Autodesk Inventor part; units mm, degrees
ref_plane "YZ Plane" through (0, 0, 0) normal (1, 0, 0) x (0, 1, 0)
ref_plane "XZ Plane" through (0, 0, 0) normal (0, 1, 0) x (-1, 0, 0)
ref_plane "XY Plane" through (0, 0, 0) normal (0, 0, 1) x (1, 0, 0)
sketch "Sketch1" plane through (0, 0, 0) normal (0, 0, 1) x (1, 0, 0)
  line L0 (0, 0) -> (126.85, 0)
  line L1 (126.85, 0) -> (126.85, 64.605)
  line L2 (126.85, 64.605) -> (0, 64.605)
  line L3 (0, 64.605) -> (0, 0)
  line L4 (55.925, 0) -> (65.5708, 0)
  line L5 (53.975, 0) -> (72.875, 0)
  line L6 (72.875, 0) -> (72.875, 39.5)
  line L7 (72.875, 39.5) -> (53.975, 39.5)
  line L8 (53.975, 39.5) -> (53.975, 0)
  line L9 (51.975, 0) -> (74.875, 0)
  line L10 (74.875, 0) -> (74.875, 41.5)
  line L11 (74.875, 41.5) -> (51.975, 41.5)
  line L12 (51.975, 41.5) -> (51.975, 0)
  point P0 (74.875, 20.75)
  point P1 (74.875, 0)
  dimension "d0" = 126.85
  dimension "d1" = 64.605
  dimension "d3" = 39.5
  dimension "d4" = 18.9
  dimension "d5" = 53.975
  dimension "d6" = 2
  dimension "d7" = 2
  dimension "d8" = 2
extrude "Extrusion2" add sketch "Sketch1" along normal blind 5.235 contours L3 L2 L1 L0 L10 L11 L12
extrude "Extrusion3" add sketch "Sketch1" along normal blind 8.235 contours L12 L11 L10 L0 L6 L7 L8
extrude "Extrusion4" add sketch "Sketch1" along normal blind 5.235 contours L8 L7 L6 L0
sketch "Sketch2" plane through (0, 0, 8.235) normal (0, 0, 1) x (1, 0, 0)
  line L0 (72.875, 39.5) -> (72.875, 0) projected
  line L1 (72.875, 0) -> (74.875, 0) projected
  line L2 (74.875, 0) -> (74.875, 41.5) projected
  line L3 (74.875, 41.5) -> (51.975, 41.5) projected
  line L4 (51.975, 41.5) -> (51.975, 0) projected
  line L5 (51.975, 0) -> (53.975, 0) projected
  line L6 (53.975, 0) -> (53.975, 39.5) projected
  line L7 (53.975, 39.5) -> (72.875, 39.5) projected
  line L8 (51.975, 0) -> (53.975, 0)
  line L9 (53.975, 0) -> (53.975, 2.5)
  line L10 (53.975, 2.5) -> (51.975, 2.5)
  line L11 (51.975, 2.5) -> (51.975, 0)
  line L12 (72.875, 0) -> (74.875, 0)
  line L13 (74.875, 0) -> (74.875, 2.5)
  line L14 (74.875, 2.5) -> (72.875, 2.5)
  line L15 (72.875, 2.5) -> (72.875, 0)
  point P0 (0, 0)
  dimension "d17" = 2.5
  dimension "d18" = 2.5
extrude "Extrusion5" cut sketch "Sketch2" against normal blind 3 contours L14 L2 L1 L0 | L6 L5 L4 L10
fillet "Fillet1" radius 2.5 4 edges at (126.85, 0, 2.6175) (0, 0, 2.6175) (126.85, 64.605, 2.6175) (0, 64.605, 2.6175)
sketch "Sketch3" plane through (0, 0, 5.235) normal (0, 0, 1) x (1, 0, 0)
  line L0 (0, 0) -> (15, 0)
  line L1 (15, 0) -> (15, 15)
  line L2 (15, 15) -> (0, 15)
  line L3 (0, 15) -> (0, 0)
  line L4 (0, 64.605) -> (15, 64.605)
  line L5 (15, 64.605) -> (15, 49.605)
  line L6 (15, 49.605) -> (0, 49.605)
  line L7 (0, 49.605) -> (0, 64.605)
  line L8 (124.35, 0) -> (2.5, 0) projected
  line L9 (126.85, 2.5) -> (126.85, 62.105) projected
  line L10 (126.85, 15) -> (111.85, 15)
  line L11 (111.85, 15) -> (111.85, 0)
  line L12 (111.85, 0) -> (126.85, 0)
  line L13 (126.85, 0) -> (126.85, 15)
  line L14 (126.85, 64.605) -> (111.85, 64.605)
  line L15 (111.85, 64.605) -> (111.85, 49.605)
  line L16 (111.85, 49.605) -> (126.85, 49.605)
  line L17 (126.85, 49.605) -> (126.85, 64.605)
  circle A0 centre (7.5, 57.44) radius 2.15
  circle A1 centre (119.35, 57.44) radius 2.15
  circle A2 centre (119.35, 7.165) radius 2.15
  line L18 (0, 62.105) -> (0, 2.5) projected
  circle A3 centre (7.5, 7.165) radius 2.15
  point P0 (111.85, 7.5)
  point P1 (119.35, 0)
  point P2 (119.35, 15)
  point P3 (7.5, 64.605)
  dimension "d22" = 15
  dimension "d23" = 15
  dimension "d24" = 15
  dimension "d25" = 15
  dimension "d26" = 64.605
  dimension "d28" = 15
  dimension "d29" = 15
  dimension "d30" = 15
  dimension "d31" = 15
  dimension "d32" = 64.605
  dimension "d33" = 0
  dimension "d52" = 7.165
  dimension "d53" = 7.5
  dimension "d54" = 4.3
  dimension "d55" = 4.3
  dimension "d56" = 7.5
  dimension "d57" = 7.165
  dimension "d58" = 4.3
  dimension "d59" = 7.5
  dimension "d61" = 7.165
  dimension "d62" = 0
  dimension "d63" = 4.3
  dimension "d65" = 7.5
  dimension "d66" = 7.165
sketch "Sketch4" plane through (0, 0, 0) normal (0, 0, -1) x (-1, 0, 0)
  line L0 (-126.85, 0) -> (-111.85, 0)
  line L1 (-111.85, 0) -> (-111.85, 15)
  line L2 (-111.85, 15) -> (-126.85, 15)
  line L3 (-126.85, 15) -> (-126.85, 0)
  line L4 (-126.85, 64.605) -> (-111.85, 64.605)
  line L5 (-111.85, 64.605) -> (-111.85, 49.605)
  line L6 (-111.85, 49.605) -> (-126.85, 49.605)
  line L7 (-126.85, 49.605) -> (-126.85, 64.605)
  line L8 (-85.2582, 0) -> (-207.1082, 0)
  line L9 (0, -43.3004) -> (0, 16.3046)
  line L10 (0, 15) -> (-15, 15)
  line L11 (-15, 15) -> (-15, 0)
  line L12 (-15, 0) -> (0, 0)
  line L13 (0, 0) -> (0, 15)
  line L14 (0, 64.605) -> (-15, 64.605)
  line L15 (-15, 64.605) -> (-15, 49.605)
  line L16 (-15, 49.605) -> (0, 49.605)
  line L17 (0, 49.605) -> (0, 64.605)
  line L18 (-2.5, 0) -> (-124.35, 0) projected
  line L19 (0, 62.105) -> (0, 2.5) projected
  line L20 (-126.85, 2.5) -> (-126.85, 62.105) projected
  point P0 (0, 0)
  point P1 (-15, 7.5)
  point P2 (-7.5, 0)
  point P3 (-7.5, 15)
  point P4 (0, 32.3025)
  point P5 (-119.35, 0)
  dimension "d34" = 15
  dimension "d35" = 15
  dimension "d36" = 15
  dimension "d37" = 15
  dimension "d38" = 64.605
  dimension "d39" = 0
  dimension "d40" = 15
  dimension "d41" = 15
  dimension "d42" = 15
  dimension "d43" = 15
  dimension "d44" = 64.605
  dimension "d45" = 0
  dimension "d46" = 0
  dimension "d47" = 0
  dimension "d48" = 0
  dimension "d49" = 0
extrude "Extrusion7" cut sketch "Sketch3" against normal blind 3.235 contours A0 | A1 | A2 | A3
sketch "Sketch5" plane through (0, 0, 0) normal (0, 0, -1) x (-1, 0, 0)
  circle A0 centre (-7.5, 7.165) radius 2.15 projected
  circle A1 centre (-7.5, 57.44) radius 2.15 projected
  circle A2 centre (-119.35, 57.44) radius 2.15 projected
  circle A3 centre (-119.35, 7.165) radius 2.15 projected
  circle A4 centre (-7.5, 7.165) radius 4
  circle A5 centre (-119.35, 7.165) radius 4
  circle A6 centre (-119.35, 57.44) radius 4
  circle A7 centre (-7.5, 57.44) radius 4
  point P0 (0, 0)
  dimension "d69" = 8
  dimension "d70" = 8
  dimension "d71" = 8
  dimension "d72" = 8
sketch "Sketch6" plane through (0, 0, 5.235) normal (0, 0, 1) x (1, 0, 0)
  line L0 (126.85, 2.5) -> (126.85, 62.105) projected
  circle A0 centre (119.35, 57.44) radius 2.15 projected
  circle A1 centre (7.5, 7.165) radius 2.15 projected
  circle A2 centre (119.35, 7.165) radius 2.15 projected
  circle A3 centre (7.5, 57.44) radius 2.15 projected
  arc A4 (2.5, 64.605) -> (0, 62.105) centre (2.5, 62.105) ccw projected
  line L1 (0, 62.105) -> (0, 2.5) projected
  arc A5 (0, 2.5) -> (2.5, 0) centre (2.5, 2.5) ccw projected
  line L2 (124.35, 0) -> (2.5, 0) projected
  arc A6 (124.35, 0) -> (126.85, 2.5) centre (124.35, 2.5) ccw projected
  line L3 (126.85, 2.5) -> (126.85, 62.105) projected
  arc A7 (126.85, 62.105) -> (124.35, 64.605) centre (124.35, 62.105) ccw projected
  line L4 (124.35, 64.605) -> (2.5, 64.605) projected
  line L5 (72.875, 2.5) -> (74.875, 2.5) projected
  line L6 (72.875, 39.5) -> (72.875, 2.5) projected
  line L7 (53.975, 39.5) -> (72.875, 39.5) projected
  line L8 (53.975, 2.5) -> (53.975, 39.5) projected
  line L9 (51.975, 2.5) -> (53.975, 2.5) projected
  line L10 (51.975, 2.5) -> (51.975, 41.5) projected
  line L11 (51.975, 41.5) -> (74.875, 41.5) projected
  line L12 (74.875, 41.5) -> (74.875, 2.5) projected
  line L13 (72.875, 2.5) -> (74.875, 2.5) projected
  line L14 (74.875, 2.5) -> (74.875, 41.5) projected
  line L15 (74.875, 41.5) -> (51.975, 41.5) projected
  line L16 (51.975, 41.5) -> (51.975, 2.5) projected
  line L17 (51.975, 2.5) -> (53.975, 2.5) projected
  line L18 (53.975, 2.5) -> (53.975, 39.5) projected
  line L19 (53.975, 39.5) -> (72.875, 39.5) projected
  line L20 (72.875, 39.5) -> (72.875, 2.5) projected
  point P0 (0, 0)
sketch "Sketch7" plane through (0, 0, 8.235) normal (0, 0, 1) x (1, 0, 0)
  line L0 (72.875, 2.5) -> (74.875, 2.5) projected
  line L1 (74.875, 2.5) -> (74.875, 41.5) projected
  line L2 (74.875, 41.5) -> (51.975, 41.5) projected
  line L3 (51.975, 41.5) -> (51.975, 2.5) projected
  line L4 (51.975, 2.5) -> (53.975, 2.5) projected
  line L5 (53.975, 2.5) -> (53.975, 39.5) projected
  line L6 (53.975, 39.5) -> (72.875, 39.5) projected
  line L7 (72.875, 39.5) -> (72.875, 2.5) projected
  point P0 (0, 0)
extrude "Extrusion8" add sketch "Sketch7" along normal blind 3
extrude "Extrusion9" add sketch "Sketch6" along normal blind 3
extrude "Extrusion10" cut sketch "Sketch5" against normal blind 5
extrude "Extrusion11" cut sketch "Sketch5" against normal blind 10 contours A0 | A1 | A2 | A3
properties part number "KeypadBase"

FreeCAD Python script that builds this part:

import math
import FreeCAD as App
import Part
import Sketcher


def edges_at(feature, points):
    """Names of the edges that pass closest to the given points."""
    edges = feature.Shape.Edges
    near = lambda p: min(range(len(edges)), key=lambda i: edges[i].distToShape(Part.Vertex(*p))[0])
    return sorted({f"Edge{near(p) + 1}" for p in points})


def add_polygon(sketch, points):
    """Adds a closed chain of lines whose ends are joined by coincident constraints."""
    first, n = sketch.GeometryCount, len(points)
    for a, b in zip(points, points[1:] + points[:1]):
        sketch.addGeometry(Part.LineSegment(App.Vector(*a, 0), App.Vector(*b, 0)), False)
    for i in range(n):
        sketch.addConstraint(Sketcher.Constraint("Coincident", first + i, 2, first + (i + 1) % n, 1))

doc = App.newDocument("Part")
body = doc.addObject("PartDesign::Body", "Body")
body.AllowCompound = True

sketch1 = body.newObject("Sketcher::SketchObject", "Sketch")
sketch1.AttachmentSupport = (doc.getObject("XY_Plane"), [""])
sketch1.MapMode = "FlatFace"
add_polygon(sketch1, [(0, 65), (0, 0), (52, 0), (52, 42), (75, 42), (75, 0), (127, 0), (127, 65)])
sketch1.addConstraint([
    Sketcher.Constraint("Vertical", 0),
    Sketcher.Constraint("Horizontal", 1),
    Sketcher.Constraint("Vertical", 2),
    Sketcher.Constraint("Horizontal", 3),
    Sketcher.Constraint("Vertical", 4),
    Sketcher.Constraint("Horizontal", 5),
    Sketcher.Constraint("Vertical", 6),
    Sketcher.Constraint("Horizontal", 7),
    Sketcher.Constraint("Coincident", 0, 2, -1, 1),
    Sketcher.Constraint("PointOnObject", 4, 2, -1),
    Sketcher.Constraint("Equal", 1, 5),
    Sketcher.Constraint("DistanceX", 7, 2, 7, 1, 126.85),
    Sketcher.Constraint("DistanceY", 0, 2, 0, 1, 64.605),
    Sketcher.Constraint("DistanceX", 3, 1, 3, 2, 22.9),
    Sketcher.Constraint("DistanceY", 2, 1, 2, 2, 41.5),
])
pad1 = body.newObject("PartDesign::Pad", "Pad")
pad1.Profile = sketch1
pad1.Length = 5.235

sketch2 = body.newObject("Sketcher::SketchObject", "Sketch001")
sketch2.AttachmentSupport = (doc.getObject("XY_Plane"), [""])
sketch2.MapMode = "FlatFace"
add_polygon(sketch2, [(52, 41.5), (52, 0), (54, 0), (54, 39.5), (72.9, 39.5), (72.9, 0), (74.9, 0), (74.9, 41.5)])
sketch2.addConstraint([
    Sketcher.Constraint("Vertical", 0),
    Sketcher.Constraint("Horizontal", 1),
    Sketcher.Constraint("Vertical", 2),
    Sketcher.Constraint("Horizontal", 3),
    Sketcher.Constraint("Vertical", 4),
    Sketcher.Constraint("Horizontal", 5),
    Sketcher.Constraint("Vertical", 6),
    Sketcher.Constraint("Horizontal", 7),
    Sketcher.Constraint("PointOnObject", 0, 2, -1),
    Sketcher.Constraint("PointOnObject", 4, 2, -1),
    Sketcher.Constraint("Equal", 1, 5),
    Sketcher.Constraint("DistanceX", 1, 1, 1, 2, 2.0),
    Sketcher.Constraint("DistanceX", 3, 1, 3, 2, 18.9),
    Sketcher.Constraint("DistanceY", 2, 1, 2, 2, 39.5),
    Sketcher.Constraint("DistanceY", 3, 2, 6, 2, 2.0),
    Sketcher.Constraint("DistanceX", -1, 1, 1, 2, 53.975),
])
pad2 = body.newObject("PartDesign::Pad", "Pad001")
pad2.Profile = sketch2
pad2.Length = 8.235

sketch3 = body.newObject("Sketcher::SketchObject", "Sketch002")
sketch3.AttachmentSupport = (doc.getObject("XY_Plane"), [""])
sketch3.MapMode = "FlatFace"
add_polygon(sketch3, [(54, 40), (54, 0), (73, 0), (73, 40)])
sketch3.addConstraint([
    Sketcher.Constraint("Vertical", 0),
    Sketcher.Constraint("Horizontal", 1),
    Sketcher.Constraint("Vertical", 2),
    Sketcher.Constraint("Horizontal", 3),
    Sketcher.Constraint("PointOnObject", 0, 2, -1),
    Sketcher.Constraint("DistanceX", 1, 1, 1, 2, 18.9),
    Sketcher.Constraint("DistanceY", 0, 2, 0, 1, 39.5),
    Sketcher.Constraint("DistanceX", -1, 1, 0, 2, 53.975),
])
pad3 = body.newObject("PartDesign::Pad", "Pad002")
pad3.Profile = sketch3
pad3.Length = 5.235

sketch4 = body.newObject("Sketcher::SketchObject", "Sketch003")
sketch4.AttachmentSupport = (doc.getObject("XY_Plane"), [""])
sketch4.MapMode = "FlatFace"
sketch4.AttachmentOffset = App.Placement(App.Vector(0, 0, 8.235), App.Rotation())
add_polygon(sketch4, [(74.9, 2.5), (72.9, 2.5), (72.9, 0), (74.9, 0)])
add_polygon(sketch4, [(54, 0), (54, 2.5), (52, 2.5), (52, 0)])
sketch4.addConstraint([
    Sketcher.Constraint("Horizontal", 0),
    Sketcher.Constraint("Vertical", 1),
    Sketcher.Constraint("Horizontal", 2),
    Sketcher.Constraint("Vertical", 3),
    Sketcher.Constraint("Vertical", 4),
    Sketcher.Constraint("Horizontal", 5),
    Sketcher.Constraint("Vertical", 6),
    Sketcher.Constraint("Horizontal", 7),
    Sketcher.Constraint("PointOnObject", 1, 2, -1),
    Sketcher.Constraint("PointOnObject", 6, 2, -1),
    Sketcher.Constraint("Horizontal", 3, 2, 4, 2),
    Sketcher.Constraint("Equal", 2, 5),
    Sketcher.Constraint("DistanceY", 1, 2, 1, 1, 2.5),
    Sketcher.Constraint("DistanceX", 0, 2, 0, 1, 2.0),
    Sketcher.Constraint("DistanceX", 4, 2, 0, 2, 18.9),
    Sketcher.Constraint("DistanceX", -1, 1, 0, 2, 72.875),
])
pocket1 = body.newObject("PartDesign::Pocket", "Pocket")
pocket1.Profile = sketch4
pocket1.Length = 3
doc.recompute()

fillet = body.newObject("PartDesign::Fillet", "Fillet")
fillet.Base = (pocket1, edges_at(pocket1, [
    (126.85, 0, 2.618),
    (0, 0, 2.618),
    (126.85, 64.605, 2.618),
    (0, 64.605, 2.618),
]))
fillet.Radius = 2.5

sketch5 = body.newObject("Sketcher::SketchObject", "Sketch004")
sketch5.AttachmentSupport = (doc.getObject("XY_Plane"), [""])
sketch5.MapMode = "FlatFace"
sketch5.AttachmentOffset = App.Placement(App.Vector(0, 0, 5.235), App.Rotation())
sketch5.addGeometry([
    Part.Circle(App.Vector(7.5, 57.4, 0), App.Vector(0, 0, 1), 2.1),
    Part.Circle(App.Vector(119.3, 57.4, 0), App.Vector(0, 0, 1), 2.1),
    Part.Circle(App.Vector(119.3, 7.2, 0), App.Vector(0, 0, 1), 2.1),
    Part.Circle(App.Vector(7.5, 7.2, 0), App.Vector(0, 0, 1), 2.1),
], False)
sketch5.addConstraint([
    Sketcher.Constraint("Equal", 0, 1),
    Sketcher.Constraint("Equal", 1, 2),
    Sketcher.Constraint("Equal", 2, 3),
    Sketcher.Constraint("Horizontal", 0, 3, 1, 3),
    Sketcher.Constraint("Horizontal", 2, 3, 3, 3),
    Sketcher.Constraint("Vertical", 1, 3, 2, 3),
    Sketcher.Constraint("Vertical", 0, 3, 3, 3),
    Sketcher.Constraint("Diameter", 0, 4.3),
    Sketcher.Constraint("DistanceX", -1, 1, 0, 3, 7.5),
    Sketcher.Constraint("DistanceY", -1, 1, 2, 3, 7.165),
    Sketcher.Constraint("DistanceY", -1, 1, 0, 3, 57.44),
    Sketcher.Constraint("DistanceX", -1, 1, 1, 3, 119.35),
])
pocket2 = body.newObject("PartDesign::Pocket", "Pocket001")
pocket2.Profile = sketch5
pocket2.Length = 3.235

sketch6 = body.newObject("Sketcher::SketchObject", "Sketch005")
sketch6.AttachmentSupport = (doc.getObject("XY_Plane"), [""])
sketch6.MapMode = "FlatFace"
sketch6.AttachmentOffset = App.Placement(App.Vector(0, 0, 8.235), App.Rotation())
add_polygon(sketch6, [(72.9, 39.5), (72.9, 2.5), (74.9, 2.5), (74.9, 41.5), (52, 41.5), (52, 2.5), (54, 2.5), (54, 39.5)])
sketch6.addConstraint([
    Sketcher.Constraint("Vertical", 0),
    Sketcher.Constraint("Horizontal", 1),
    Sketcher.Constraint("Vertical", 2),
    Sketcher.Constraint("Horizontal", 3),
    Sketcher.Constraint("Vertical", 4),
    Sketcher.Constraint("Horizontal", 5),
    Sketcher.Constraint("Vertical", 6),
    Sketcher.Constraint("Horizontal", 7),
    Sketcher.Constraint("Horizontal", 1, 2, 4, 2),
    Sketcher.Constraint("Equal", 1, 5),
    Sketcher.Constraint("DistanceX", 1, 1, 1, 2, 2.0),
    Sketcher.Constraint("DistanceY", 0, 2, 0, 1, 37.0),
    Sketcher.Constraint("DistanceY", 2, 1, 2, 2, 39.0),
    Sketcher.Constraint("DistanceX", 3, 2, 3, 1, 22.9),
    Sketcher.Constraint("DistanceY", -1, 1, 0, 2, 2.5),
    Sketcher.Constraint("DistanceX", -1, 1, 0, 2, 72.875),
])
pad4 = body.newObject("PartDesign::Pad", "Pad003")
pad4.Profile = sketch6
pad4.Length = 3

sketch7 = body.newObject("Sketcher::SketchObject", "Sketch006")
sketch7.AttachmentSupport = (doc.getObject("XY_Plane"), [""])
sketch7.MapMode = "FlatFace"
sketch7.AttachmentOffset = App.Placement(App.Vector(0, 0, 5.235), App.Rotation())
sketch7.addGeometry(Part.ArcOfCircle(Part.Circle(App.Vector(124.3, 2.5, 0), App.Vector(0, 0, 1), 2.5), math.radians(-90), math.radians(0)), False)
sketch7.addGeometry(Part.LineSegment(App.Vector(126.8, 2.5, 0), App.Vector(126.8, 62.1, 0)), False)
sketch7.addGeometry(Part.ArcOfCircle(Part.Circle(App.Vector(124.3, 62.1, 0), App.Vector(0, 0, 1), 2.5), math.radians(0), math.radians(90)), False)
sketch7.addGeometry(Part.LineSegment(App.Vector(124.3, 64.6, 0), App.Vector(2.5, 64.6, 0)), False)
sketch7.addGeometry(Part.ArcOfCircle(Part.Circle(App.Vector(2.5, 62.1, 0), App.Vector(0, 0, 1), 2.5), math.radians(90), math.radians(180)), False)
sketch7.addGeometry(Part.LineSegment(App.Vector(0, 62.1, 0), App.Vector(0, 2.5, 0)), False)
sketch7.addGeometry(Part.ArcOfCircle(Part.Circle(App.Vector(2.5, 2.5, 0), App.Vector(0, 0, 1), 2.5), math.radians(180), math.radians(270)), False)
sketch7.addGeometry(Part.LineSegment(App.Vector(2.5, 0, 0), App.Vector(124.3, 0, 0)), False)
sketch7.addGeometry(Part.Circle(App.Vector(7.5, 7.2, 0), App.Vector(0, 0, 1), 2.1), False)
sketch7.addGeometry(Part.Circle(App.Vector(119.3, 7.2, 0), App.Vector(0, 0, 1), 2.1), False)
add_polygon(sketch7, [(74.9, 2.5), (72.9, 2.5), (72.9, 39.5), (54, 39.5), (54, 2.5), (52, 2.5), (52, 41.5), (74.9, 41.5)])
sketch7.addGeometry(Part.Circle(App.Vector(7.5, 57.4, 0), App.Vector(0, 0, 1), 2.1), False)
sketch7.addGeometry(Part.Circle(App.Vector(119.3, 57.4, 0), App.Vector(0, 0, 1), 2.1), False)
sketch7.addConstraint([
    Sketcher.Constraint("Tangent", 0, 2, 1, 1),
    Sketcher.Constraint("Tangent", 1, 2, 2, 1),
    Sketcher.Constraint("Tangent", 2, 2, 3, 1),
    Sketcher.Constraint("Tangent", 3, 2, 4, 1),
    Sketcher.Constraint("Tangent", 4, 2, 5, 1),
    Sketcher.Constraint("Tangent", 5, 2, 6, 1),
    Sketcher.Constraint("Tangent", 6, 2, 7, 1),
    Sketcher.Constraint("Tangent", 7, 2, 0, 1),
    Sketcher.Constraint("Vertical", 1),
    Sketcher.Constraint("Horizontal", 3),
    Sketcher.Constraint("Vertical", 5),
    Sketcher.Constraint("Horizontal", 7),
    Sketcher.Constraint("Horizontal", 10),
    Sketcher.Constraint("Vertical", 11),
    Sketcher.Constraint("Horizontal", 12),
    Sketcher.Constraint("Vertical", 13),
    Sketcher.Constraint("Horizontal", 14),
    Sketcher.Constraint("Vertical", 15),
    Sketcher.Constraint("Horizontal", 16),
    Sketcher.Constraint("Vertical", 17),
    Sketcher.Constraint("Equal", 0, 2),
    Sketcher.Constraint("Equal", 2, 4),
    Sketcher.Constraint("Equal", 4, 6),
    Sketcher.Constraint("Equal", 8, 9),
    Sketcher.Constraint("Equal", 9, 18),
    Sketcher.Constraint("Equal", 18, 19),
    Sketcher.Constraint("PointOnObject", 4, 2, -2),
    Sketcher.Constraint("PointOnObject", 6, 2, -1),
    Sketcher.Constraint("Horizontal", 8, 3, 9, 3),
    Sketcher.Constraint("Horizontal", 18, 3, 19, 3),
    Sketcher.Constraint("Horizontal", 5, 2, 10, 2),
    Sketcher.Constraint("Horizontal", 10, 2, 13, 2),
    Sketcher.Constraint("Vertical", 8, 3, 18, 3),
    Sketcher.Constraint("Vertical", 9, 3, 19, 3),
    Sketcher.Constraint("Equal", 10, 14),
    Sketcher.Constraint("Diameter", 8, 4.3),
    Sketcher.Constraint("Radius", 0, 2.5),
    Sketcher.Constraint("DistanceX", 10, 2, 10, 1, 2.0),
    Sketcher.Constraint("DistanceY", 11, 1, 11, 2, 37.0),
    Sketcher.Constraint("DistanceY", 15, 1, 15, 2, 39.0),
    Sketcher.Constraint("DistanceX", 12, 2, 12, 1, 18.9),
    Sketcher.Constraint("DistanceX", 6, 3, 8, 3, 5.0),
    Sketcher.Constraint("DistanceX", 9, 3, 0, 3, 5.0),
    Sketcher.Constraint("DistanceX", 3, 2, 3, 1, 121.85),
    Sketcher.Constraint("DistanceY", 1, 1, 1, 2, 59.605),
    Sketcher.Constraint("DistanceY", -1, 1, 18, 3, 57.44),
    Sketcher.Constraint("DistanceY", 8, 3, 4, 3, 54.94),
    Sketcher.Constraint("DistanceX", -1, 1, 10, 2, 72.875),
])
pad5 = body.newObject("PartDesign::Pad", "Pad004")
pad5.Profile = sketch7
pad5.Length = 3

sketch8 = body.newObject("Sketcher::SketchObject", "Sketch007")
sketch8.AttachmentSupport = (doc.getObject("XY_Plane"), [""])
sketch8.MapMode = "FlatFace"
sketch8.addGeometry([
    Part.Circle(App.Vector(7.5, 7.2, 0), App.Vector(0, 0, 1), 4),
    Part.Circle(App.Vector(7.5, 7.2, 0), App.Vector(0, 0, 1), 2.1),
    Part.Circle(App.Vector(119.3, 7.2, 0), App.Vector(0, 0, 1), 4),
    Part.Circle(App.Vector(119.3, 7.2, 0), App.Vector(0, 0, 1), 2.1),
    Part.Circle(App.Vector(119.3, 57.4, 0), App.Vector(0, 0, 1), 4),
    Part.Circle(App.Vector(119.3, 57.4, 0), App.Vector(0, 0, 1), 2.1),
    Part.Circle(App.Vector(7.5, 57.4, 0), App.Vector(0, 0, 1), 4),
    Part.Circle(App.Vector(7.5, 57.4, 0), App.Vector(0, 0, 1), 2.1),
], False)
sketch8.addConstraint([
    Sketcher.Constraint("Coincident", 1, 3, 0, 3),
    Sketcher.Constraint("Coincident", 3, 3, 2, 3),
    Sketcher.Constraint("Coincident", 5, 3, 4, 3),
    Sketcher.Constraint("Coincident", 7, 3, 6, 3),
    Sketcher.Constraint("Equal", 0, 2),
    Sketcher.Constraint("Equal", 1, 3),
    Sketcher.Constraint("Equal", 2, 4),
    Sketcher.Constraint("Equal", 3, 5),
    Sketcher.Constraint("Equal", 4, 6),
    Sketcher.Constraint("Equal", 5, 7),
    Sketcher.Constraint("Horizontal", 1, 3, 2, 3),
    Sketcher.Constraint("Horizontal", 5, 3, 6, 3),
    Sketcher.Constraint("Vertical", 3, 3, 4, 3),
    Sketcher.Constraint("Vertical", 1, 3, 6, 3),
    Sketcher.Constraint("Diameter", 0, 8.0),
    Sketcher.Constraint("Diameter", 1, 4.3),
    Sketcher.Constraint("DistanceX", -1, 1, 0, 3, 7.5),
    Sketcher.Constraint("DistanceX", -1, 1, 2, 3, 119.35),
    Sketcher.Constraint("DistanceY", -1, 1, 4, 3, 57.44),
    Sketcher.Constraint("DistanceY", -1, 1, 0, 3, 7.165),
])
pocket3 = body.newObject("PartDesign::Pocket", "Pocket002")
pocket3.Profile = sketch8
pocket3.Length = 5
pocket3.Reversed = True

sketch9 = body.newObject("Sketcher::SketchObject", "Sketch008")
sketch9.AttachmentSupport = (doc.getObject("XY_Plane"), [""])
sketch9.MapMode = "FlatFace"
sketch9.addGeometry([
    Part.Circle(App.Vector(7.5, 7.2, 0), App.Vector(0, 0, 1), 2.1),
    Part.Circle(App.Vector(7.5, 57.4, 0), App.Vector(0, 0, 1), 2.1),
    Part.Circle(App.Vector(119.3, 57.4, 0), App.Vector(0, 0, 1), 2.1),
    Part.Circle(App.Vector(119.3, 7.2, 0), App.Vector(0, 0, 1), 2.1),
], False)
sketch9.addConstraint([
    Sketcher.Constraint("Equal", 0, 1),
    Sketcher.Constraint("Equal", 1, 2),
    Sketcher.Constraint("Equal", 2, 3),
    Sketcher.Constraint("Horizontal", 1, 3, 2, 3),
    Sketcher.Constraint("Horizontal", 0, 3, 3, 3),
    Sketcher.Constraint("Vertical", 0, 3, 1, 3),
    Sketcher.Constraint("Vertical", 2, 3, 3, 3),
    Sketcher.Constraint("Diameter", 0, 4.3),
    Sketcher.Constraint("DistanceX", -1, 1, 0, 3, 7.5),
    Sketcher.Constraint("DistanceY", -1, 1, 1, 3, 57.44),
    Sketcher.Constraint("DistanceX", -1, 1, 2, 3, 119.35),
    Sketcher.Constraint("DistanceY", -1, 1, 0, 3, 7.165),
])
pocket4 = body.newObject("PartDesign::Pocket", "Pocket003")
pocket4.Profile = sketch9
pocket4.Length = 10
pocket4.Reversed = True

doc.recompute()
